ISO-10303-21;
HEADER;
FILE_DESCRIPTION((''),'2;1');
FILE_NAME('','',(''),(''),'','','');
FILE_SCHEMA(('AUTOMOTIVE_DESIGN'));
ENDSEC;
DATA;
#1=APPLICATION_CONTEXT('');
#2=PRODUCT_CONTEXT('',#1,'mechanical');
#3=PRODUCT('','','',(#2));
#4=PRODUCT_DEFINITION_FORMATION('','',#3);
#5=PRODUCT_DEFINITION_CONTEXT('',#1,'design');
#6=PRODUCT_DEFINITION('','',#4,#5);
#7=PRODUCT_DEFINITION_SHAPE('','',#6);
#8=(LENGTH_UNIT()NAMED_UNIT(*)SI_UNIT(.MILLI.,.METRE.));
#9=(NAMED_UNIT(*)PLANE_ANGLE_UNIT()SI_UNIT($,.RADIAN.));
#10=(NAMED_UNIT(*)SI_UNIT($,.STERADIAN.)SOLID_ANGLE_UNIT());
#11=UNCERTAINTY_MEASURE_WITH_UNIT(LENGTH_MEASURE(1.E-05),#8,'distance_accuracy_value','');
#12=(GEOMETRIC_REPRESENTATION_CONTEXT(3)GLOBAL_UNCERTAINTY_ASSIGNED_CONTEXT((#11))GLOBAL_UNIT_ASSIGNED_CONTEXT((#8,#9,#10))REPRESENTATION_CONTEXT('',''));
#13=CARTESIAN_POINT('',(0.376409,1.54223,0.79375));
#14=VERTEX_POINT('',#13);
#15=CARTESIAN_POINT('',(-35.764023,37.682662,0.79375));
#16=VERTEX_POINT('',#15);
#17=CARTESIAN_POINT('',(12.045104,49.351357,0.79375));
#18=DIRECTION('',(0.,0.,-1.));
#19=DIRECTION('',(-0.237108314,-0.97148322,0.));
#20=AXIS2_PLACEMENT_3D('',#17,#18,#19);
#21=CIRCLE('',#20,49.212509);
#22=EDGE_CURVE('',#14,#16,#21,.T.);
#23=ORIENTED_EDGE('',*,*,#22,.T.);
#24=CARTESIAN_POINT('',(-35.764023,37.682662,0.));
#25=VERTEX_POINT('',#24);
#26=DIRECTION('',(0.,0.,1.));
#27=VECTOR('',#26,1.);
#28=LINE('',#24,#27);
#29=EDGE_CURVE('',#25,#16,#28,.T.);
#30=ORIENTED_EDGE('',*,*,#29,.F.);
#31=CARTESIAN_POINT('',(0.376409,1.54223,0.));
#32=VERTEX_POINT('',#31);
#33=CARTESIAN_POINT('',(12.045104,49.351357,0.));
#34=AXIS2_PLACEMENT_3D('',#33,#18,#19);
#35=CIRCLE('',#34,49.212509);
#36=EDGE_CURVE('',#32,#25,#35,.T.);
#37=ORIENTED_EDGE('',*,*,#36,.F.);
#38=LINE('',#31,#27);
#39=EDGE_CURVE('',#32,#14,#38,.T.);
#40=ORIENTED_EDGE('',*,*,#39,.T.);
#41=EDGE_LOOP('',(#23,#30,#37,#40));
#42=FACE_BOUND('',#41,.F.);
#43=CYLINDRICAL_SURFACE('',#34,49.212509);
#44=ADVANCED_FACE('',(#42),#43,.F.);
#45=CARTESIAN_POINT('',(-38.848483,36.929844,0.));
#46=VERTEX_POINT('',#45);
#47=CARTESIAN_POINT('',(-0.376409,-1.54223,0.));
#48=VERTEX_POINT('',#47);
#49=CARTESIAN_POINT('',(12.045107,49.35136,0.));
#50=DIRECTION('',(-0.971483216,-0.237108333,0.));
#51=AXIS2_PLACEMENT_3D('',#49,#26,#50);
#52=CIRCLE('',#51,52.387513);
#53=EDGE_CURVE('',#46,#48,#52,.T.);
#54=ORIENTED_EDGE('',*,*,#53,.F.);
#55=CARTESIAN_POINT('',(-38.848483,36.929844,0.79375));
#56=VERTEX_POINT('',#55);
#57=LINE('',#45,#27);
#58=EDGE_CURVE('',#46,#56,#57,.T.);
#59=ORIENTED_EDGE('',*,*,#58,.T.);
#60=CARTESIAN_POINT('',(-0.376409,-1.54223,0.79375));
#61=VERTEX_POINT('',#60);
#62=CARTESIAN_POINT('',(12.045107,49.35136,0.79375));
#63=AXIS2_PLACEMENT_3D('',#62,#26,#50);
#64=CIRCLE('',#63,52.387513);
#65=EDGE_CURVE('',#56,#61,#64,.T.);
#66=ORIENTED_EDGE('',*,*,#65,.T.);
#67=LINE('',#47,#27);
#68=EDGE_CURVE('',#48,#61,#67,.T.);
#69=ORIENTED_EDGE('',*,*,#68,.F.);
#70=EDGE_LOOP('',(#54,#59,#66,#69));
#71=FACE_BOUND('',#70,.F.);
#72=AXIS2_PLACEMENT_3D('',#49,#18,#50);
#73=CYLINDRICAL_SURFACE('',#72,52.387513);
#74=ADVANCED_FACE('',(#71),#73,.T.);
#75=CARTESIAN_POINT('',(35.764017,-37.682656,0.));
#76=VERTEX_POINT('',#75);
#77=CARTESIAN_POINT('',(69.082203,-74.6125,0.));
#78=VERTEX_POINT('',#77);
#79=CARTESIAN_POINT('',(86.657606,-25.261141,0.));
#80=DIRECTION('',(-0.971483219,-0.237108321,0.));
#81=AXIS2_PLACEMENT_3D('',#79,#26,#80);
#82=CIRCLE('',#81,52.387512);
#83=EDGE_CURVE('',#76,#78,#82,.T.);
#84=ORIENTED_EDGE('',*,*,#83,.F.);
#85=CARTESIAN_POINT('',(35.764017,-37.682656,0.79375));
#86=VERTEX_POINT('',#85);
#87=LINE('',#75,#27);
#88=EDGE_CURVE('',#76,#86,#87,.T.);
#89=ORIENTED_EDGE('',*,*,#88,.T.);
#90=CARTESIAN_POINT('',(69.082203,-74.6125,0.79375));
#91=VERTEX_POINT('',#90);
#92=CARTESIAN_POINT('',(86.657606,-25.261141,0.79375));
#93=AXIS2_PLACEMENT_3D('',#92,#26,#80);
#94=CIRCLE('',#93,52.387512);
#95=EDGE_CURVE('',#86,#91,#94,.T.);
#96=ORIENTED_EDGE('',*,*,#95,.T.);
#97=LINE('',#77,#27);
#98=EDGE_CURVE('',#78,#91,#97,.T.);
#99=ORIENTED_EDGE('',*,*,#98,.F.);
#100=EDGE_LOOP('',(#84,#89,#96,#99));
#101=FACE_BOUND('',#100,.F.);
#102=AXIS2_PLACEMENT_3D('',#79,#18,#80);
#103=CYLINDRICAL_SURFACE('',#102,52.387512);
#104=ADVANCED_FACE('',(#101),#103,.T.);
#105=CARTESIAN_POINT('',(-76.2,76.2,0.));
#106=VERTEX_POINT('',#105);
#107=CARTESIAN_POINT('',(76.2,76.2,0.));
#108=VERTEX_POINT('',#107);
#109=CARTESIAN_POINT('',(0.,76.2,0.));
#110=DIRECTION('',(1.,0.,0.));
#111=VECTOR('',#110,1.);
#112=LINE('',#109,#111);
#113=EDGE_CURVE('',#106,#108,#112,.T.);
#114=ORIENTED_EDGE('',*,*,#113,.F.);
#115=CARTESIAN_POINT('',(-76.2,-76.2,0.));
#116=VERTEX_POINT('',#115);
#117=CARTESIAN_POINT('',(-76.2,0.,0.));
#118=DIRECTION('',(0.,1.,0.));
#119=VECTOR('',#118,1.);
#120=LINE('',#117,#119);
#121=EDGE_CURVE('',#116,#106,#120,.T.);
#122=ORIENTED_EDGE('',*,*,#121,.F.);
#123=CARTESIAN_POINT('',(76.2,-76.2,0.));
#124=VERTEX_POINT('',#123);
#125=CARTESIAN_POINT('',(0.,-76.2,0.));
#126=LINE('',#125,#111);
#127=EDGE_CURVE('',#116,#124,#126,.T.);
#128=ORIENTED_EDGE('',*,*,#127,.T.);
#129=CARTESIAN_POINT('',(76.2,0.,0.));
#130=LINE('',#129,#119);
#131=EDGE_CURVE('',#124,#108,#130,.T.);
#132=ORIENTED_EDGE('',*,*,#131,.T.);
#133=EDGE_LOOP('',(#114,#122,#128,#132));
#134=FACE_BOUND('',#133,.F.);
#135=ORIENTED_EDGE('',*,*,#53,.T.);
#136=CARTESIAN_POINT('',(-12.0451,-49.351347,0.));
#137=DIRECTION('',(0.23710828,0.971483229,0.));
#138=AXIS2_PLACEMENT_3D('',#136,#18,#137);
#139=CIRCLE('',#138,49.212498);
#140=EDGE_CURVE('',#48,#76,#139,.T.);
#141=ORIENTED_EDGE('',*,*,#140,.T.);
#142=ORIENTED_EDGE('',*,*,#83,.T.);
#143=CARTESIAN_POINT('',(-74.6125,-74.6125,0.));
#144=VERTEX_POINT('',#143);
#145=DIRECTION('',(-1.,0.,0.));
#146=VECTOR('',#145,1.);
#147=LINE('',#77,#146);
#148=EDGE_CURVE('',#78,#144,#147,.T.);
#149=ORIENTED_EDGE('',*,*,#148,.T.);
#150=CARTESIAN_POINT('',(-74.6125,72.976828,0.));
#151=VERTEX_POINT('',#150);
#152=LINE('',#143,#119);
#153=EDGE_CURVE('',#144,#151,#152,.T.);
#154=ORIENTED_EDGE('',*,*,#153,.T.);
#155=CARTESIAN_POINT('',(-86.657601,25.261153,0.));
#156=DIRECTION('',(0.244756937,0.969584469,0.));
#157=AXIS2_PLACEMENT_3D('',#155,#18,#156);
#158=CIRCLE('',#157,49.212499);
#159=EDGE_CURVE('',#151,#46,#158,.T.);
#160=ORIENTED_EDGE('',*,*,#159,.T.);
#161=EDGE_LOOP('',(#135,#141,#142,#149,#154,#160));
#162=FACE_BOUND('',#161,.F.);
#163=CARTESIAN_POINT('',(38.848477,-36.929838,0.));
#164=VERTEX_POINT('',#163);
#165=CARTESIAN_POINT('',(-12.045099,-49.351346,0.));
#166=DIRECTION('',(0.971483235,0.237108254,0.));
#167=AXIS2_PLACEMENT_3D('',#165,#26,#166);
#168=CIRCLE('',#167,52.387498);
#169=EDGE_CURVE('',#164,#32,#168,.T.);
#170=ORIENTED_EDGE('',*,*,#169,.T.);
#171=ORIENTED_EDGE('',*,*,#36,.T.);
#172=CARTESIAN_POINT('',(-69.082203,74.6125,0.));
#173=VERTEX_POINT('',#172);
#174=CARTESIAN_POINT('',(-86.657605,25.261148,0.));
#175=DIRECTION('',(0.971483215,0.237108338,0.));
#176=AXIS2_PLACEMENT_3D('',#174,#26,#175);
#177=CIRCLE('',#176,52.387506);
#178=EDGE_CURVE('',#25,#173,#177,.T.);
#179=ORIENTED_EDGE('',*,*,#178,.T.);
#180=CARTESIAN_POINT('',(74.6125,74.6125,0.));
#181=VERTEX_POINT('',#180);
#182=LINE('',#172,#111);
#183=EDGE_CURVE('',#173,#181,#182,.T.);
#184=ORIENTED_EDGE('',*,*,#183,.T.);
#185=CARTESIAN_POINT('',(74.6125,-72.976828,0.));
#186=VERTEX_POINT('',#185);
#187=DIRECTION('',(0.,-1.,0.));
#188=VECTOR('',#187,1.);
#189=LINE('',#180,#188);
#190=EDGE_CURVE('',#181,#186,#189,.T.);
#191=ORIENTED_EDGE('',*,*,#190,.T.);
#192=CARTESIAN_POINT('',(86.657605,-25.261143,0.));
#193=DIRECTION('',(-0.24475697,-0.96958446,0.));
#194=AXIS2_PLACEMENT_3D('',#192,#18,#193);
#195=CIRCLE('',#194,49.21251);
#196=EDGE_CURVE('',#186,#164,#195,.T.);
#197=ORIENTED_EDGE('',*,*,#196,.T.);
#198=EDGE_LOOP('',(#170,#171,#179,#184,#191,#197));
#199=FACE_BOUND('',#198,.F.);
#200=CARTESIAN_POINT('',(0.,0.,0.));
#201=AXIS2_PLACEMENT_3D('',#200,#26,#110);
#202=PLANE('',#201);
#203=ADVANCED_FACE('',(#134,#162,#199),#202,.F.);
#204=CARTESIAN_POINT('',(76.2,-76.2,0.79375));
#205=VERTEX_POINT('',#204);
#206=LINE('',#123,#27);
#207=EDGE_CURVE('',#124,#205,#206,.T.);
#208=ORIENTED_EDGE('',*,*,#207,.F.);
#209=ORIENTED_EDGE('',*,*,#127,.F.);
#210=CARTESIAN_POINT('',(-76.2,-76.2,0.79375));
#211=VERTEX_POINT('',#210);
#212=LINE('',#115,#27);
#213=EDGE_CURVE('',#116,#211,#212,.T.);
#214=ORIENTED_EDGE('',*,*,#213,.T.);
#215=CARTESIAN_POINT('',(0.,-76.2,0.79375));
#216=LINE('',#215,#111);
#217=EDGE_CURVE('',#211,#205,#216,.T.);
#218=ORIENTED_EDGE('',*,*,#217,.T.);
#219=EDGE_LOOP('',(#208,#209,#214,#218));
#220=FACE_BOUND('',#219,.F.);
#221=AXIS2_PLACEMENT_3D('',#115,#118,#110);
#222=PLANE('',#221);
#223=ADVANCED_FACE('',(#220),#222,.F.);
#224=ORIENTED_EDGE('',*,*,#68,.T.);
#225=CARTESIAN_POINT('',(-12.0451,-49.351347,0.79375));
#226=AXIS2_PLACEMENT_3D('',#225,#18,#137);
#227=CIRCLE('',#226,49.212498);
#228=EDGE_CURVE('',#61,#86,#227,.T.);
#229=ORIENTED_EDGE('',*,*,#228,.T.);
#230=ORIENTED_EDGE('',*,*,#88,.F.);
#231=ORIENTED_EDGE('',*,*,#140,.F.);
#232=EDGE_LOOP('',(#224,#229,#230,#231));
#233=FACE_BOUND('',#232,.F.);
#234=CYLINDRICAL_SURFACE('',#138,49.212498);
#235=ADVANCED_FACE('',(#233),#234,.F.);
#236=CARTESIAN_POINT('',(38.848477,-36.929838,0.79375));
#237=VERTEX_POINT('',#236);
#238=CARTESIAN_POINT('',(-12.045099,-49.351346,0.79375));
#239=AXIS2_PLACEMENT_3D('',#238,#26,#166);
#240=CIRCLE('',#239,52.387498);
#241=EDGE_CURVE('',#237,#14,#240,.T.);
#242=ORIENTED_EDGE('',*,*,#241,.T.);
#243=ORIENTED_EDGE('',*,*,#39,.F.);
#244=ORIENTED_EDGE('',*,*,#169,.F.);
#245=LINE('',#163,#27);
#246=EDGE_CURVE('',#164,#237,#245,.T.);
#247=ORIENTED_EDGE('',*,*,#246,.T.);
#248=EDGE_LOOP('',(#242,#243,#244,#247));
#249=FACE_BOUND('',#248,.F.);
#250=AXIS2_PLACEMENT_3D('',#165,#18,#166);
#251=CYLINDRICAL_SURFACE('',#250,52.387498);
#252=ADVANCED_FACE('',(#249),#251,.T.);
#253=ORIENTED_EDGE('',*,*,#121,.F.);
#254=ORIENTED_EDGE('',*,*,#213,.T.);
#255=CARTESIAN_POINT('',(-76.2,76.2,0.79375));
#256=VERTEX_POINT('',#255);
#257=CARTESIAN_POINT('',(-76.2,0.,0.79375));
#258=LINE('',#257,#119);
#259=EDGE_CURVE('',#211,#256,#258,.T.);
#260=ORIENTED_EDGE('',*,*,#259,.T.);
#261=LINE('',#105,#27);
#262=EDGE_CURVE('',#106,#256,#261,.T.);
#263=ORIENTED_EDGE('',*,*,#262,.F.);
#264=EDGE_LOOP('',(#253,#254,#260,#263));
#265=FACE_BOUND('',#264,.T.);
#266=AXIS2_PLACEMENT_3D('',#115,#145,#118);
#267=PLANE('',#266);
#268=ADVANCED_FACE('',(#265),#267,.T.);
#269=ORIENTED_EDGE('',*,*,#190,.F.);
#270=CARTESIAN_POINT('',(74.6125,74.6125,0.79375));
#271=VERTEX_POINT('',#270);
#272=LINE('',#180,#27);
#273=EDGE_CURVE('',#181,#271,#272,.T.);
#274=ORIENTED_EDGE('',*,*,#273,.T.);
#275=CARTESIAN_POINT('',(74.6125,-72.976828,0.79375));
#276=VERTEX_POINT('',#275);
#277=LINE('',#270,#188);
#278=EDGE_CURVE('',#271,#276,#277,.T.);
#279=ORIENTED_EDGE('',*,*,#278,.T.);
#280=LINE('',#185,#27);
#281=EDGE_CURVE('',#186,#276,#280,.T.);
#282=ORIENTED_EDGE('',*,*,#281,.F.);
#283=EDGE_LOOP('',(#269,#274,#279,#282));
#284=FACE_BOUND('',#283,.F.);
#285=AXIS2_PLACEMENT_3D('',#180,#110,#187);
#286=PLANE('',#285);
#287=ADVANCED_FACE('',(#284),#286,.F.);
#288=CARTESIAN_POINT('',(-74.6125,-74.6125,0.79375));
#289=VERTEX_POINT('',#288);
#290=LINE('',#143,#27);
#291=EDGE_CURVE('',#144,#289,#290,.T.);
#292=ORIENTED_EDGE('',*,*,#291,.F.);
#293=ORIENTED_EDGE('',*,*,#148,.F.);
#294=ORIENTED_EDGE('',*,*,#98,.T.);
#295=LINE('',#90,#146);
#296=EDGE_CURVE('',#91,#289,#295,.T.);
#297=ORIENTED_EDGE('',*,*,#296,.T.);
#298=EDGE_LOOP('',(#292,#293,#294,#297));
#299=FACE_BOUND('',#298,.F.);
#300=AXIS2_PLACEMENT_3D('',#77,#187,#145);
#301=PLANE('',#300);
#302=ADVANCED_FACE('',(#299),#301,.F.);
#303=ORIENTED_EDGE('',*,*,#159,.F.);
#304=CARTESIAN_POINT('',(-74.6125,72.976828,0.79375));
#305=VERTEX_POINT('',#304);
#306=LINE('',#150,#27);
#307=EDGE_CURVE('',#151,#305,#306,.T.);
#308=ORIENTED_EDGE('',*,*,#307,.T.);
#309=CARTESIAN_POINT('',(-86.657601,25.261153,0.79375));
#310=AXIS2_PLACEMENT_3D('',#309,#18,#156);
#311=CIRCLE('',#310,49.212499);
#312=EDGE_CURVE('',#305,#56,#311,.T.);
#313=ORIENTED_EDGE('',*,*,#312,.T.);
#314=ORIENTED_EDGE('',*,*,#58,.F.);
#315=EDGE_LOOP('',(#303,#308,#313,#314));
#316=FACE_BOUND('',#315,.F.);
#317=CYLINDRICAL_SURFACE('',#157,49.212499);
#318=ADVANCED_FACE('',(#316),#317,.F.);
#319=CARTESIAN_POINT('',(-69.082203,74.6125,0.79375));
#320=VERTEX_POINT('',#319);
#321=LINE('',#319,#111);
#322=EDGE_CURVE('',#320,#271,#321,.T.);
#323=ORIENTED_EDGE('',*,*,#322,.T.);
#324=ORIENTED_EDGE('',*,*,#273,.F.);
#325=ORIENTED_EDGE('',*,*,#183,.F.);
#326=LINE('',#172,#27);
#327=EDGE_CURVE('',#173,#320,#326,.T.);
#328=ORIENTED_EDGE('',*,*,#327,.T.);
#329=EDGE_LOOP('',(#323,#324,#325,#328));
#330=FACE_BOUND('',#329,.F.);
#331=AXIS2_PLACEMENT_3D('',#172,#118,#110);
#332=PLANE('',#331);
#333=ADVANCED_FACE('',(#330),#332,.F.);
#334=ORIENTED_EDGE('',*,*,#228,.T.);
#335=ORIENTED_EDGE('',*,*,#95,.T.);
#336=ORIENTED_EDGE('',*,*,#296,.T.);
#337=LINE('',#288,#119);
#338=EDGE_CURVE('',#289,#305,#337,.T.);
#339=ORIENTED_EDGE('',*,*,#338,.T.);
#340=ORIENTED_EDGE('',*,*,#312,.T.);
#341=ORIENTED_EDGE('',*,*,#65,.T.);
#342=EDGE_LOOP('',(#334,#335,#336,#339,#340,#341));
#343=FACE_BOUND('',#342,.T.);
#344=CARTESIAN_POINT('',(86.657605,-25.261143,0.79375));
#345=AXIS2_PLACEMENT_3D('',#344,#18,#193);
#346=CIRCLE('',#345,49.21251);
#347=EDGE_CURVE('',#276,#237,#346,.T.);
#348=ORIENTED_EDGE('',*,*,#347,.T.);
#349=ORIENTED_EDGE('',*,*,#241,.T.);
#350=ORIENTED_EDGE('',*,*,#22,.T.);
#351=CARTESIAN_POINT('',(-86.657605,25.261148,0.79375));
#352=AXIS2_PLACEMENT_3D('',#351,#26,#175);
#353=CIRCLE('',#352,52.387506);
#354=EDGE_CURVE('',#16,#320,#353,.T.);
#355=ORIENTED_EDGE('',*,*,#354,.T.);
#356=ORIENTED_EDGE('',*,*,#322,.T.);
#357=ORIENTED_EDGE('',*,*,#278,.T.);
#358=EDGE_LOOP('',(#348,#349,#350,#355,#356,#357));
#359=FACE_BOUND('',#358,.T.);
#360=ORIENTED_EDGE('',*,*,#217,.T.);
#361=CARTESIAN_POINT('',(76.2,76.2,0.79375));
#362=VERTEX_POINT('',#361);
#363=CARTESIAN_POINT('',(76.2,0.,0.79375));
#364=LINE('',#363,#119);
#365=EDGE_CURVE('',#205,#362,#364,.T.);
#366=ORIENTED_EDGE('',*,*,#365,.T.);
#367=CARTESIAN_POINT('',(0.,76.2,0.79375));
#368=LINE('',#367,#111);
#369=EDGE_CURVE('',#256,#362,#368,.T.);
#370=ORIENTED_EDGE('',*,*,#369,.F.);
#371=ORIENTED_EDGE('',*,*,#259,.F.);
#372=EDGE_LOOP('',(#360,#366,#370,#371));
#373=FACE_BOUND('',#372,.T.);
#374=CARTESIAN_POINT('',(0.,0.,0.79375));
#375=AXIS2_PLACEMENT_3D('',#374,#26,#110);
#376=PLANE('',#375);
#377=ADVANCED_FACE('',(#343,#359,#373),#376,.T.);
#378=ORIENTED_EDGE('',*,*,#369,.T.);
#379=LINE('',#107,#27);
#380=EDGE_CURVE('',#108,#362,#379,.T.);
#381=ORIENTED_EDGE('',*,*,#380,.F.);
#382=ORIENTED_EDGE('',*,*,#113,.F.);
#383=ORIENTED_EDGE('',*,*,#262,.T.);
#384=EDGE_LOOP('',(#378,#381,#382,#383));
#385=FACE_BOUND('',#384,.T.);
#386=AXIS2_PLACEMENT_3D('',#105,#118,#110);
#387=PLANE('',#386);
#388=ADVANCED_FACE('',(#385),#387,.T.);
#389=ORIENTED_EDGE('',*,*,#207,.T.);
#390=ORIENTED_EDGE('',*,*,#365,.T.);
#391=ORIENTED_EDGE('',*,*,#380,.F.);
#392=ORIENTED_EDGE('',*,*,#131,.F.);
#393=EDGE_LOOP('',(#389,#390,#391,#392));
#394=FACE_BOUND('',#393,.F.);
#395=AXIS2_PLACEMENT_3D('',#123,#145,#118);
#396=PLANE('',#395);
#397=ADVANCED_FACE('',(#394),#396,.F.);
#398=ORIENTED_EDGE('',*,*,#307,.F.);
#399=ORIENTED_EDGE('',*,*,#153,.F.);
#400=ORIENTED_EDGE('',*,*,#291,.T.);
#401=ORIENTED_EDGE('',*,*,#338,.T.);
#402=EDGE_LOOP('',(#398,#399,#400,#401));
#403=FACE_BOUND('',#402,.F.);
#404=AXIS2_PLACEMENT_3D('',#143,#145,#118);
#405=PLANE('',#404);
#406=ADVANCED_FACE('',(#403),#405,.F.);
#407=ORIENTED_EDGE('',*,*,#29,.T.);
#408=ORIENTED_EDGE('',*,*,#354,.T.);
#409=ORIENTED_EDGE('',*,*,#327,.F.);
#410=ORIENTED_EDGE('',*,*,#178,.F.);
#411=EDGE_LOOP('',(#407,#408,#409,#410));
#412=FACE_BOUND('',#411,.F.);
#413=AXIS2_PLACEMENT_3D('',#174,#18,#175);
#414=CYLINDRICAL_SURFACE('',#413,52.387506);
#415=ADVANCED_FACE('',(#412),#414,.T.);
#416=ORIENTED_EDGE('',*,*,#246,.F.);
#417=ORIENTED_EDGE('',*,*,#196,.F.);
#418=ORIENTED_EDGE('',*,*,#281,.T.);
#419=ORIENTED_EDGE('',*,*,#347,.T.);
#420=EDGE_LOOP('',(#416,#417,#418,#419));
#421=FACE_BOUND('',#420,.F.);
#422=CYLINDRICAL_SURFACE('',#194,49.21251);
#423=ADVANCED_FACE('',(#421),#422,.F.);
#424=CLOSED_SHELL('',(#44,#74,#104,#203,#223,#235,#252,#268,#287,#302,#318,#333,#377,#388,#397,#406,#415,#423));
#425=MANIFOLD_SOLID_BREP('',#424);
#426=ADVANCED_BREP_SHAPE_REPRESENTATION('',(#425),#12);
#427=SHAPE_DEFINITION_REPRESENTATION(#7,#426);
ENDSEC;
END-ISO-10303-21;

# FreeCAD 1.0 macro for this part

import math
import FreeCAD as App
import Part
import Sketcher

V = App.Vector
Q = App.Units.Quantity

doc = App.newDocument("Part")
body = doc.addObject("PartDesign::Body", "Body")

sketch1 = body.newObject("Sketcher::SketchObject", "Sketch")
sketch1.AttachmentSupport = (doc.getObject("XY_Plane"), [""])
sketch1.MapMode = "FlatFace"
sketch1.addGeometry(Part.LineSegment(V(-76, 76, 0), V(-76, -76, 0)), False)
sketch1.addGeometry(Part.LineSegment(V(-76, -76, 0), V(76, -76, 0)), False)
sketch1.addGeometry(Part.LineSegment(V(76, -76, 0), V(76, 76, 0)), False)
sketch1.addGeometry(Part.LineSegment(V(76, 76, 0), V(-76, 76, 0)), False)
sketch1.addGeometry(Part.LineSegment(V(69, -75, 0), V(-75, -75, 0)), False)
sketch1.addGeometry(Part.LineSegment(V(-75, -75, 0), V(-75, 73, 0)), False)
sketch1.addGeometry(Part.ArcOfCircle(Part.Circle(V(-87, 25, 0), V(0, 0, 1), 49), math.radians(14), math.radians(76)), False)
sketch1.addGeometry(Part.ArcOfCircle(Part.Circle(V(12, 49, 0), V(0, 0, 1), 52), math.radians(-166), math.radians(-104)), False)
sketch1.addGeometry(Part.ArcOfCircle(Part.Circle(V(-12, -49, 0), V(0, 0, 1), 49), math.radians(14), math.radians(76)), False)
sketch1.addGeometry(Part.ArcOfCircle(Part.Circle(V(87, -25, 0), V(0, 0, 1), 52), math.radians(-166), math.radians(-110)), False)
sketch1.addGeometry(Part.ArcOfCircle(Part.Circle(V(12, 49, 0), V(0, 0, 1), 49), math.radians(-166), math.radians(-104)), False)
sketch1.addGeometry(Part.ArcOfCircle(Part.Circle(V(-87, 25, 0), V(0, 0, 1), 52), math.radians(14), math.radians(70)), False)
sketch1.addGeometry(Part.LineSegment(V(-69, 75, 0), V(75, 75, 0)), False)
sketch1.addGeometry(Part.LineSegment(V(75, 75, 0), V(75, -73, 0)), False)
sketch1.addGeometry(Part.ArcOfCircle(Part.Circle(V(87, -25, 0), V(0, 0, 1), 49), math.radians(-166), math.radians(-104)), False)
sketch1.addGeometry(Part.ArcOfCircle(Part.Circle(V(-12, -49, 0), V(0, 0, 1), 52), math.radians(14), math.radians(76)), False)
sketch1.addConstraint(Sketcher.Constraint("Coincident", 0, 2, 1, 1))
sketch1.addConstraint(Sketcher.Constraint("Coincident", 1, 2, 2, 1))
sketch1.addConstraint(Sketcher.Constraint("Coincident", 2, 2, 3, 1))
sketch1.addConstraint(Sketcher.Constraint("Coincident", 3, 2, 0, 1))
sketch1.addConstraint(Sketcher.Constraint("Coincident", 4, 2, 5, 1))
sketch1.addConstraint(Sketcher.Constraint("Coincident", 5, 2, 6, 2))
sketch1.addConstraint(Sketcher.Constraint("Tangent", 6, 1, 7, 1))
sketch1.addConstraint(Sketcher.Constraint("Tangent", 7, 2, 8, 2))
sketch1.addConstraint(Sketcher.Constraint("Tangent", 8, 1, 9, 1))
sketch1.addConstraint(Sketcher.Constraint("Coincident", 9, 2, 4, 1))
sketch1.addConstraint(Sketcher.Constraint("Tangent", 10, 1, 11, 1))
sketch1.addConstraint(Sketcher.Constraint("Coincident", 11, 2, 12, 1))
sketch1.addConstraint(Sketcher.Constraint("Coincident", 12, 2, 13, 1))
sketch1.addConstraint(Sketcher.Constraint("Coincident", 13, 2, 14, 2))
sketch1.addConstraint(Sketcher.Constraint("Tangent", 14, 1, 15, 1))
sketch1.addConstraint(Sketcher.Constraint("Tangent", 15, 2, 10, 2))
sketch1.addConstraint(Sketcher.Constraint("Vertical", 0))
sketch1.addConstraint(Sketcher.Constraint("Horizontal", 1))
sketch1.addConstraint(Sketcher.Constraint("Vertical", 2))
sketch1.addConstraint(Sketcher.Constraint("Horizontal", 3))
sketch1.addConstraint(Sketcher.Constraint("Horizontal", 4))
sketch1.addConstraint(Sketcher.Constraint("Vertical", 5))
sketch1.addConstraint(Sketcher.Constraint("Horizontal", 12))
sketch1.addConstraint(Sketcher.Constraint("Vertical", 13))
sketch1.addConstraint(Sketcher.Constraint("Coincident", 10, 3, 7, 3))
sketch1.addConstraint(Sketcher.Constraint("Coincident", 11, 3, 6, 3))
sketch1.addConstraint(Sketcher.Constraint("Coincident", 14, 3, 9, 3))
sketch1.addConstraint(Sketcher.Constraint("Coincident", 15, 3, 8, 3))
sketch1.addConstraint(Sketcher.Constraint("Equal", 6, 8))
sketch1.addConstraint(Sketcher.Constraint("Equal", 7, 9))
sketch1.addConstraint(Sketcher.Constraint("Symmetric", 9, 3, 11, 3, -1, 1))
sketch1.addConstraint(Sketcher.Constraint("Symmetric", 0, 2, 2, 2, -1, 1))
sketch1.addConstraint(Sketcher.Constraint("Symmetric", 8, 1, 10, 1, -1, 1))
sketch1.addConstraint(Sketcher.Constraint("Symmetric", 4, 2, 12, 2, -1, 1))
sketch1.addConstraint(Sketcher.Constraint("Equal", 3, 0))
sketch1.addConstraint(Sketcher.Constraint("DistanceX", 1, 1, 1, 2, Q("6 in")))
sketch1.addConstraint(Sketcher.Constraint("Radius", 6, Q("1.9375 in")))
sketch1.addConstraint(Sketcher.Constraint("Radius", 15, Q("2.0624999 in")))
sketch1.addConstraint(Sketcher.Constraint("DistanceX", 4, 2, -1, 1, Q("2.9375 in")))
sketch1.addConstraint(Sketcher.Constraint("DistanceY", 4, 2, -1, 1, Q("2.9375 in")))
sketch1.addConstraint(Sketcher.Constraint("DistanceX", 6, 3, 8, 3, Q("2.9375 in")))
sketch1.addConstraint(Sketcher.Constraint("DistanceY", 8, 3, 6, 3, Q("2.9375 in")))
pad1 = body.newObject("PartDesign::Pad", "Pad")
pad1.Profile = sketch1
pad1.Length = Q("0.03125 in")

doc.recompute()
